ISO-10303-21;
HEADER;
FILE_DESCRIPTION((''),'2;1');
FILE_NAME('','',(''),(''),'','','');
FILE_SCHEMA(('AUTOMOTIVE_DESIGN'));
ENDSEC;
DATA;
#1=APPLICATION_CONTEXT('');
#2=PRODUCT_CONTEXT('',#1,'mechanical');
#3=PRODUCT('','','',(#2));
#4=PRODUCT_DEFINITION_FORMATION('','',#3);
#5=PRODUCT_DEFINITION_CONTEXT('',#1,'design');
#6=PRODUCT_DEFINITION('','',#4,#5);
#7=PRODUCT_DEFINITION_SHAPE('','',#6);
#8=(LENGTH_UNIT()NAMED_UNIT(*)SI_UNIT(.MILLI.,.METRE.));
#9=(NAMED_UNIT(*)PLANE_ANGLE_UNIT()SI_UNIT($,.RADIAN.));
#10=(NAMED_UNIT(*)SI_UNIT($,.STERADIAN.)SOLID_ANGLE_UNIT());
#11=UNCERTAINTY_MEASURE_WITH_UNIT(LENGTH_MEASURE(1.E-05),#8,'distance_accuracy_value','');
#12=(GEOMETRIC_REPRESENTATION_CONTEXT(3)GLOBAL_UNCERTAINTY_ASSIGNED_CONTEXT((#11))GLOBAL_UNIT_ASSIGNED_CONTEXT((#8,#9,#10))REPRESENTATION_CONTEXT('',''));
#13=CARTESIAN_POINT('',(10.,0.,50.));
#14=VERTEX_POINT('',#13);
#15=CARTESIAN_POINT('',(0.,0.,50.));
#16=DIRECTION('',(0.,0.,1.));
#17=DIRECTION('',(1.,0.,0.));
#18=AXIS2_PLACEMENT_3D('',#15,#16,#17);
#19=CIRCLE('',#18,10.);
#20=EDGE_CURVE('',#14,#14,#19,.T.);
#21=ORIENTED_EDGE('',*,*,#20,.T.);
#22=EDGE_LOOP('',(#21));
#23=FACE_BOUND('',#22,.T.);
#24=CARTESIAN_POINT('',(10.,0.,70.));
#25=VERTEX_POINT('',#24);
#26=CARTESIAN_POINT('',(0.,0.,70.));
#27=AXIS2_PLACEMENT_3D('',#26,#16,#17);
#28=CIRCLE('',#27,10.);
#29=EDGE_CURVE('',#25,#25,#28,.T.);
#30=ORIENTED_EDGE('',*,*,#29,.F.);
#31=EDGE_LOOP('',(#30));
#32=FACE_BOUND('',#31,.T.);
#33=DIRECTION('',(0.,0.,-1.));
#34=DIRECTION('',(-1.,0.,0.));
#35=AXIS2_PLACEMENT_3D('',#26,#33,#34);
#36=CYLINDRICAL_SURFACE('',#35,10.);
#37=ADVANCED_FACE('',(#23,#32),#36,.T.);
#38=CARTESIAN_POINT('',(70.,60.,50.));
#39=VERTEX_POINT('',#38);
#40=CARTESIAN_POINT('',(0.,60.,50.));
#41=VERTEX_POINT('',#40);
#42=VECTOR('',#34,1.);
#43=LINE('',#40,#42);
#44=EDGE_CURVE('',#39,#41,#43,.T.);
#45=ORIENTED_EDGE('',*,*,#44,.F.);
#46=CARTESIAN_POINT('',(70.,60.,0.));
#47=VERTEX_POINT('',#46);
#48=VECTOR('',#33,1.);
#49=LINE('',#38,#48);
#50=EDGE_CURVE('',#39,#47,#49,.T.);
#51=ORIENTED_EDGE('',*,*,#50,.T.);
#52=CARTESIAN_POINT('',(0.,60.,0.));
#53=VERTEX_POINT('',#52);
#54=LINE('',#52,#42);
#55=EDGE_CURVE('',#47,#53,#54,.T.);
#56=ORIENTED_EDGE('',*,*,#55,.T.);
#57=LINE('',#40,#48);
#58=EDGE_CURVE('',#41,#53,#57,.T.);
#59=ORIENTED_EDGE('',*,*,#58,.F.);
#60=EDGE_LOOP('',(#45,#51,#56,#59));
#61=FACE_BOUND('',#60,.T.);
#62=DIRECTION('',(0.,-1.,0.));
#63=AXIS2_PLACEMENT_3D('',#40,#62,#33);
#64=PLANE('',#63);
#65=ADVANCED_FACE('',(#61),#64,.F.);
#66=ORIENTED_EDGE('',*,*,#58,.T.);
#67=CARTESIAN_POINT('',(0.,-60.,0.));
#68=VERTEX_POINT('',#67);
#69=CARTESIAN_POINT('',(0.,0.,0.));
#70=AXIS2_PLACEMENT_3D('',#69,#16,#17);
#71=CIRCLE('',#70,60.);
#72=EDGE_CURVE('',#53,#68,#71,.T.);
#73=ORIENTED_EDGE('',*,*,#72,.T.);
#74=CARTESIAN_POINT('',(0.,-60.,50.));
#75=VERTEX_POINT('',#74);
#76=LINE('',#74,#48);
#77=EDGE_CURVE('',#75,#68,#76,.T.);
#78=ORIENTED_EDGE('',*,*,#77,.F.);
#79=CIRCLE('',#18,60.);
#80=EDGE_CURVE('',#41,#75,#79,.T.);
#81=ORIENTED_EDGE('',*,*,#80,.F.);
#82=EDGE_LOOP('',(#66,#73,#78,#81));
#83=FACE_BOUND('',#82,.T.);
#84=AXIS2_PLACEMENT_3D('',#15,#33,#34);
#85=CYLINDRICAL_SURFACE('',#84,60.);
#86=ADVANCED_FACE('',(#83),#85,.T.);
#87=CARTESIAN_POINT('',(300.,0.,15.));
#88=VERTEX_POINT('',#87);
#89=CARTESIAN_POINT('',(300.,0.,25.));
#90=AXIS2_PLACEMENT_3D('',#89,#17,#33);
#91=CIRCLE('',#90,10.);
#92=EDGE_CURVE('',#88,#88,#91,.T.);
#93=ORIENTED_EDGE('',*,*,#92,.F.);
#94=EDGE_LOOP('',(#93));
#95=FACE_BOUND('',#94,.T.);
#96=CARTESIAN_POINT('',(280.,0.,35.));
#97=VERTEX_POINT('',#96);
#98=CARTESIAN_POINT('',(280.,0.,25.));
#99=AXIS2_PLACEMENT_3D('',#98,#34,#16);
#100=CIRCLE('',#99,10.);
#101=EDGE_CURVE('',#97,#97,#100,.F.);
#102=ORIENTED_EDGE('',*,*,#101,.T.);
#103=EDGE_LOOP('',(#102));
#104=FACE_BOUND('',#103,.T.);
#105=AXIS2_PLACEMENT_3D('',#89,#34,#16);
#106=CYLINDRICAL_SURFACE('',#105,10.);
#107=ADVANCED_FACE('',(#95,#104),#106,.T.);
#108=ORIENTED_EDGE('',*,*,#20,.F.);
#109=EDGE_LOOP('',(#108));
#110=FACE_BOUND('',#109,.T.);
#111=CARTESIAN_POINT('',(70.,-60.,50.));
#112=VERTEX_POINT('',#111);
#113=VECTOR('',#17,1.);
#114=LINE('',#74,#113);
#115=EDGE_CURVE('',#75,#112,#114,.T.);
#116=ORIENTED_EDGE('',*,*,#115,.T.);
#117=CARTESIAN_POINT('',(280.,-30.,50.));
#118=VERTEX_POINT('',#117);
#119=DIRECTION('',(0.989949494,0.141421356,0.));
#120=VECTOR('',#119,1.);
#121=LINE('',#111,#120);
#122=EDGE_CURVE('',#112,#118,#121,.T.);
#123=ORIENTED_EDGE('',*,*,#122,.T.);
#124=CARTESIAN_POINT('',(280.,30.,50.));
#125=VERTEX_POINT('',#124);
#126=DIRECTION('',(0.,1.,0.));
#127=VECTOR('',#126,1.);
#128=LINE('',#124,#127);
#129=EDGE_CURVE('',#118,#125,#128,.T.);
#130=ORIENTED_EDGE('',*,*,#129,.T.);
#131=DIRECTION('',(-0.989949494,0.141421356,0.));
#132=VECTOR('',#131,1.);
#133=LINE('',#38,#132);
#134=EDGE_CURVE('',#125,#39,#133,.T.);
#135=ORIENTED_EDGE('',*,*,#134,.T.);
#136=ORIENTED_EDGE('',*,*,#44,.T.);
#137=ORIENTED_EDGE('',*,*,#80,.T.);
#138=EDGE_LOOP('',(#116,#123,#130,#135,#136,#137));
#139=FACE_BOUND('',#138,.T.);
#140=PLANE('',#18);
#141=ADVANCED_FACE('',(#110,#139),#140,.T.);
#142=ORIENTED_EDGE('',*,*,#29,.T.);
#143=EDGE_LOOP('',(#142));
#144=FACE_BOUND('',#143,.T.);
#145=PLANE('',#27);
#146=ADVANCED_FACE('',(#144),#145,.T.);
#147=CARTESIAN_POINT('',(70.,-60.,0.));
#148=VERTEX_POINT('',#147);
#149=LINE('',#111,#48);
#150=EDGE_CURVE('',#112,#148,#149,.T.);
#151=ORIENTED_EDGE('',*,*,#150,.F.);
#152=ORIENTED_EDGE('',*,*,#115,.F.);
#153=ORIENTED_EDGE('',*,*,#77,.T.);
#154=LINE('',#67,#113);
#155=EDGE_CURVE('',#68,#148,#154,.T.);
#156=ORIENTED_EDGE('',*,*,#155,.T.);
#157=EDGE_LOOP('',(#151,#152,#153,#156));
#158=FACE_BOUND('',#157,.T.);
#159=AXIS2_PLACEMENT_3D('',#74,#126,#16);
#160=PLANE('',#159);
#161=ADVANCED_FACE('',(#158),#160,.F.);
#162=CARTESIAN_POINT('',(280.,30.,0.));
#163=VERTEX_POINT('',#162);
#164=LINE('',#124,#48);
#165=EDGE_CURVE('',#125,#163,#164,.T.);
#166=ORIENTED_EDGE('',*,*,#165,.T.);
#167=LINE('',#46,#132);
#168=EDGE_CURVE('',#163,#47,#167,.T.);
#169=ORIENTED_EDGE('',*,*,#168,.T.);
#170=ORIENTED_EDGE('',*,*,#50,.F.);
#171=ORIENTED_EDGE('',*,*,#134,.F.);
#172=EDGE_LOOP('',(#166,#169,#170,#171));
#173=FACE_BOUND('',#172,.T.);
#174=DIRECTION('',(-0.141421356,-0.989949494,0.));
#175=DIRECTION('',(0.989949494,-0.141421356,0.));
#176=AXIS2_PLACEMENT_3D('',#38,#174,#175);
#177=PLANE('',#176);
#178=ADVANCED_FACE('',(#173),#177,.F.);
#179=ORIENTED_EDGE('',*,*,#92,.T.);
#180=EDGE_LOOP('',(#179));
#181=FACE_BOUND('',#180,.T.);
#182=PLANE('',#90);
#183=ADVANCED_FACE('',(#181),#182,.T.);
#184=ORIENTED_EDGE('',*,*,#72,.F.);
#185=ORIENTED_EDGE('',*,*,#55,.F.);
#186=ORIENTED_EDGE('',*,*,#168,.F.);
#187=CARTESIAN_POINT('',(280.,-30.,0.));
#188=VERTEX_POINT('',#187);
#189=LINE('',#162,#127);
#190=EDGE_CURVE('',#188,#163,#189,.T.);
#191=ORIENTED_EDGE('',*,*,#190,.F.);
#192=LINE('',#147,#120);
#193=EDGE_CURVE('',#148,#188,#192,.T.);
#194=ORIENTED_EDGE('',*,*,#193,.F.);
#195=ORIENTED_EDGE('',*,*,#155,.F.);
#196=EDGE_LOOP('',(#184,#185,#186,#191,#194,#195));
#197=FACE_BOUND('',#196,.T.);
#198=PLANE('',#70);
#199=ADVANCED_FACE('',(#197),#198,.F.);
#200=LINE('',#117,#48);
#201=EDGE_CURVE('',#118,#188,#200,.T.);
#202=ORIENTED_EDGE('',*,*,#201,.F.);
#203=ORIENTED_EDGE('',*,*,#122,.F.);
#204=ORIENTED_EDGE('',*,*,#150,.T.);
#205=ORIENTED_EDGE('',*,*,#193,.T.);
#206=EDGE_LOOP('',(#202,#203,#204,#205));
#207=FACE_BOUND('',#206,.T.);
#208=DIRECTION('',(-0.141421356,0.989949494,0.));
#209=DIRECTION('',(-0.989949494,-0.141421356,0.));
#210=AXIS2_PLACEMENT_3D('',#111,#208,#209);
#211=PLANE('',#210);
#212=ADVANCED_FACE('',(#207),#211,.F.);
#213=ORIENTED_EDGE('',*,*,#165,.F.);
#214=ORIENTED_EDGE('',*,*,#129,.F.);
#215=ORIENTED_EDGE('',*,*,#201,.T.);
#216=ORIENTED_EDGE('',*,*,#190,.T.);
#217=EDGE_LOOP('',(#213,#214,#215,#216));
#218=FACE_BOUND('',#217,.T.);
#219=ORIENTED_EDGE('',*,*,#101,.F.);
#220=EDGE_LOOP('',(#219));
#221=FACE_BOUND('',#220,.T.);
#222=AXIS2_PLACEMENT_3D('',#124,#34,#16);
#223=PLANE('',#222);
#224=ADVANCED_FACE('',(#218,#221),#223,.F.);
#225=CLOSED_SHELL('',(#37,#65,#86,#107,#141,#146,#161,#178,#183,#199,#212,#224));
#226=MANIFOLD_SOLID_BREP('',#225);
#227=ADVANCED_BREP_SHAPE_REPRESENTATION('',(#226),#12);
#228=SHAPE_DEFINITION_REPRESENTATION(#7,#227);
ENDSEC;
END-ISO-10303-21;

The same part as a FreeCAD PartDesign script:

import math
import FreeCAD as App
import Part
import Sketcher
from FreeCAD import Vector
Q = App.Units.Quantity

doc = App.newDocument("Part")
body = doc.addObject("PartDesign::Body", "Body")

# Sketch on XY plane
sketch1 = doc.addObject("Sketcher::SketchObject", "Sketch")
body.addObject(sketch1)
sketch1.AttachmentSupport = (doc.XY_Plane, [""])
sketch1.MapMode = "FlatFace"
sketch1.addGeometry([
    Part.LineSegment(Vector(70, 60, 0), Vector(0, 60, 0)),  # 0
    Part.ArcOfCircle(Part.Circle(Vector(0, 0, 0), Vector(0, 0, 1), 60), math.radians(90), math.radians(270)),  # 1
    Part.LineSegment(Vector(0, -60, 0), Vector(70, -60, 0)),  # 2
    Part.LineSegment(Vector(70, -60, 0), Vector(280, -30, 0)),  # 3
    Part.LineSegment(Vector(280, -30, 0), Vector(280, 30, 0)),  # 4
    Part.LineSegment(Vector(280, 30, 0), Vector(70, 60, 0)),  # 5
], False)
sketch1.addConstraint([
    Sketcher.Constraint("Tangent", 0, 2, 1, 1),
    Sketcher.Constraint("Tangent", 1, 2, 2, 1),
    Sketcher.Constraint("Coincident", 2, 2, 3, 1),
    Sketcher.Constraint("Coincident", 3, 2, 4, 1),
    Sketcher.Constraint("Coincident", 4, 2, 5, 1),
    Sketcher.Constraint("Coincident", 5, 2, 0, 1),
    Sketcher.Constraint("Horizontal", 0),
    Sketcher.Constraint("Horizontal", 2),
    Sketcher.Constraint("Vertical", 4),
    Sketcher.Constraint("Coincident", 1, 3, -1, 1),
    Sketcher.Constraint("Vertical", 2, 2, 5, 2),
    Sketcher.Constraint("Equal", 3, 5),
    Sketcher.Constraint("Radius", 1, Q("60 mm")),
    Sketcher.Constraint("DistanceX", 0, 2, 0, 1, Q("70 mm")),
    Sketcher.Constraint("DistanceY", 4, 1, 4, 2, Q("60 mm")),
    Sketcher.Constraint("DistanceX", -1, 1, 3, 2, Q("280 mm")),
])
pad1 = doc.addObject("PartDesign::Pad", "Pad")
body.addObject(pad1)
pad1.Profile = sketch1
pad1.Length = 50

# Sketch on XY plane
sketch2 = doc.addObject("Sketcher::SketchObject", "Sketch001")
body.addObject(sketch2)
sketch2.AttachmentSupport = (doc.XY_Plane, [""])
sketch2.MapMode = "FlatFace"
sketch2.AttachmentOffset = App.Placement(Vector(0, 0, 50), App.Rotation())
sketch2.addGeometry(Part.Circle(Vector(0, 0, 0), Vector(0, 0, 1), 10), False)
sketch2.addConstraint([
    Sketcher.Constraint("Coincident", 0, 3, -1, 1),
    Sketcher.Constraint("Diameter", 0, Q("20 mm")),
])
pad2 = doc.addObject("PartDesign::Pad", "Pad001")
body.addObject(pad2)
pad2.Profile = sketch2
pad2.Length = 20

# Sketch on YZ plane
sketch3 = doc.addObject("Sketcher::SketchObject", "Sketch002")
body.addObject(sketch3)
sketch3.AttachmentSupport = (doc.YZ_Plane, [""])
sketch3.MapMode = "FlatFace"
sketch3.AttachmentOffset = App.Placement(Vector(0, 0, 280), App.Rotation())
sketch3.addGeometry(Part.Circle(Vector(0, 25, 0), Vector(0, 0, 1), 10), False)
sketch3.addConstraint([
    Sketcher.Constraint("PointOnObject", 0, 3, -2),
    Sketcher.Constraint("Diameter", 0, Q("20 mm")),
    Sketcher.Constraint("DistanceY", -1, 1, 0, 3, Q("25 mm")),
])
pad3 = doc.addObject("PartDesign::Pad", "Pad002")
body.addObject(pad3)
pad3.Profile = sketch3
pad3.Length = 20

doc.recompute()
